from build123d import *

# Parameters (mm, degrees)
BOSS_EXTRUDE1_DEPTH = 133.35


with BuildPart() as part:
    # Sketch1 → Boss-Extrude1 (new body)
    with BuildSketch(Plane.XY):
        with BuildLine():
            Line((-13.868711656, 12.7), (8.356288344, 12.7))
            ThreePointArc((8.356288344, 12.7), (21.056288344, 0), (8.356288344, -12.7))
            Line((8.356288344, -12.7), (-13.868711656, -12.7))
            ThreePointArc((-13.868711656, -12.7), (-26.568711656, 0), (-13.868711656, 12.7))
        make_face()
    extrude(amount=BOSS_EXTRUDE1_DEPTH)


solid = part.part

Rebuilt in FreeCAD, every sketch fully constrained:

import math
import FreeCAD as App
import Part
import Sketcher

V = App.Vector
Q = App.Units.Quantity

doc = App.newDocument("Part")
body = doc.addObject("PartDesign::Body", "Body")

sketch1 = body.newObject("Sketcher::SketchObject", "Sketch")
sketch1.AttachmentSupport = (doc.getObject("XY_Plane"), [""])
sketch1.MapMode = "FlatFace"
sketch1.addGeometry([
    Part.LineSegment(V(8.356288, 12.7, 0), V(-13.868712, 12.7, 0)),
    Part.ArcOfCircle(Part.Circle(V(-13.868712, 0, 0), V(0, 0, 1), 12.7), math.radians(90), math.radians(270)),
    Part.LineSegment(V(-13.868712, -12.7, 0), V(8.356288, -12.7, 0)),
    Part.ArcOfCircle(Part.Circle(V(8.356288, 0, 0), V(0, 0, 1), 12.7), math.radians(-90), math.radians(90)),
], False)
sketch1.addConstraint([
    Sketcher.Constraint("Tangent", 0, 2, 1, 1),
    Sketcher.Constraint("Tangent", 1, 2, 2, 1),
    Sketcher.Constraint("Tangent", 2, 2, 3, 1),
    Sketcher.Constraint("Tangent", 3, 2, 0, 1),
    Sketcher.Constraint("Horizontal", 0),
    Sketcher.Constraint("Horizontal", 2),
    Sketcher.Constraint("PointOnObject", 1, 3, -1),
    Sketcher.Constraint("Radius", 1, Q("0.5 in")),
    Sketcher.Constraint("DistanceX", 0, 2, 0, 1, Q("0.875 in")),
    Sketcher.Constraint("DistanceX", 1, 3, -1, 1, Q("13.868712 mm")),
])
pad1 = body.newObject("PartDesign::Pad", "Pad")
pad1.Profile = sketch1
pad1.Length = Q("5.25 in")

doc.recompute()
